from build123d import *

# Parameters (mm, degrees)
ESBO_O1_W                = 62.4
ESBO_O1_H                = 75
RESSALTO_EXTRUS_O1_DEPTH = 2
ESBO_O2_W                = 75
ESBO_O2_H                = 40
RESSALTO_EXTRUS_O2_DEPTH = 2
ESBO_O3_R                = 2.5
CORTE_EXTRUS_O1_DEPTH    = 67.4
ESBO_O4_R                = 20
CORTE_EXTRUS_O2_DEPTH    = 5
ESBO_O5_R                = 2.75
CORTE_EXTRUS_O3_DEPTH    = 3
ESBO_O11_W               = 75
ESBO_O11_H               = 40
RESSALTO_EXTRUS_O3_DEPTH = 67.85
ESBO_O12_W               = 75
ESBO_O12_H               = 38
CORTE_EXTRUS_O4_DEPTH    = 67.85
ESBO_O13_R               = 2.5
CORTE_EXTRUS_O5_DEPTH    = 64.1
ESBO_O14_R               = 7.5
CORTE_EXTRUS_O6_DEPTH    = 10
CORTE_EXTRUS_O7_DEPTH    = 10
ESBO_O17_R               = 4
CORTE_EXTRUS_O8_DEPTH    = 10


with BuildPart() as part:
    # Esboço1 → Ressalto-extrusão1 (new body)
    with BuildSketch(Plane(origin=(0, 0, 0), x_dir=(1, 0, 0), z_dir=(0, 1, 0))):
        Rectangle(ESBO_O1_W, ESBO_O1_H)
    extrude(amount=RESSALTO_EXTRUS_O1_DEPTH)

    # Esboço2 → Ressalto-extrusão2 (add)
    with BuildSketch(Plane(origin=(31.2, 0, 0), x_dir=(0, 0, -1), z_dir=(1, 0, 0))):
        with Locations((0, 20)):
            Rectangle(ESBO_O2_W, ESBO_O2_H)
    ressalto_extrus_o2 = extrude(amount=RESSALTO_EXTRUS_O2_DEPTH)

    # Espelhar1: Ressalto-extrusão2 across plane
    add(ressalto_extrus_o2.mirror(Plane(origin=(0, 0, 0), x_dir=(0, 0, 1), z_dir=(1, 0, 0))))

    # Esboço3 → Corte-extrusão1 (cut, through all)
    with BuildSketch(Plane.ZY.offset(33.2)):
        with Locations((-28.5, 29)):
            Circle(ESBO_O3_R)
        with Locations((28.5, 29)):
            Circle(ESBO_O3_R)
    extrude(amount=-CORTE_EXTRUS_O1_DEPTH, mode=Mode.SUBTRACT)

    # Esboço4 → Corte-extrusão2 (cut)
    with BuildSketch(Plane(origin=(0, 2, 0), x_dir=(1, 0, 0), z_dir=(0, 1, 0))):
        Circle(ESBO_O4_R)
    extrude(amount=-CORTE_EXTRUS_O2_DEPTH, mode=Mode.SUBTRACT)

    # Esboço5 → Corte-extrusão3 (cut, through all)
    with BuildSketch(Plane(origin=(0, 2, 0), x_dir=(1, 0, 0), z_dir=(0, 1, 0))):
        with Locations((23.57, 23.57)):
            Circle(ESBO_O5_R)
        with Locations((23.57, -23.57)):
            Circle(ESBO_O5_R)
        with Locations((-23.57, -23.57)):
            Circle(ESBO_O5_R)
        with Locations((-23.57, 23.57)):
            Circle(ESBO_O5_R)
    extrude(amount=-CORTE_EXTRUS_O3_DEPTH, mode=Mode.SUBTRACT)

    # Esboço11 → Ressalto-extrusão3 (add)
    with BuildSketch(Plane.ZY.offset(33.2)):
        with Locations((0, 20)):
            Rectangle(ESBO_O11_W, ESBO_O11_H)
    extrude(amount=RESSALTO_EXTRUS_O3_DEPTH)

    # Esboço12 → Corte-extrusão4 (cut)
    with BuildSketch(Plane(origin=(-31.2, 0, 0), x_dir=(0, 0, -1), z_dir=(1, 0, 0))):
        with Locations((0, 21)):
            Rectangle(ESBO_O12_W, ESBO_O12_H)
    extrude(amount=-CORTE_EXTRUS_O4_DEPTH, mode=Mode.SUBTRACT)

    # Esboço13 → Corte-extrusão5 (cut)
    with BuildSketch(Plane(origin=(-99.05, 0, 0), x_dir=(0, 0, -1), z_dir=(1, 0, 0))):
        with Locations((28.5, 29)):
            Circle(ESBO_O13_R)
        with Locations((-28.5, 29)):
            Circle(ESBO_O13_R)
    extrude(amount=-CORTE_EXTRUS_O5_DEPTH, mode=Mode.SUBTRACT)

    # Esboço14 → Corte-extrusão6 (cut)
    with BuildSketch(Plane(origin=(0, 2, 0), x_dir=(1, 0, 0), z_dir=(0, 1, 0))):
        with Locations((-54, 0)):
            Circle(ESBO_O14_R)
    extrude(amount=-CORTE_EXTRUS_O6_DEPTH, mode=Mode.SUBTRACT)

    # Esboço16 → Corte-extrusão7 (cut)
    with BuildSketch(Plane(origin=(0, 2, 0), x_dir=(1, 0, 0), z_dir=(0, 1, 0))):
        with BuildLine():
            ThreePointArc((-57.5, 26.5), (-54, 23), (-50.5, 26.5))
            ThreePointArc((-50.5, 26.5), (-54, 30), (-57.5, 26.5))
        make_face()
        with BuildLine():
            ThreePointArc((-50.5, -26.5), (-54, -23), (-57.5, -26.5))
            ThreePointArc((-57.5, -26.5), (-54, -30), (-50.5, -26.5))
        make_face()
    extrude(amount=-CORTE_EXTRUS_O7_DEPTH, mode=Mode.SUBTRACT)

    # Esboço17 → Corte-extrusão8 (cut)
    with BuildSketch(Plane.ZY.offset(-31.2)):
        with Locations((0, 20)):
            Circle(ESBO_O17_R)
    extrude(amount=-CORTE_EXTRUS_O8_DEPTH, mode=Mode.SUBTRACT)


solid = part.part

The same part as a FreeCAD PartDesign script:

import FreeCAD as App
import Part
import Sketcher

V = App.Vector

doc = App.newDocument("Part")
body = doc.addObject("PartDesign::Body", "Body")

# Sketch on XZ plane
sketch1 = body.newObject("Sketcher::SketchObject", "Sketch")
sketch1.AttachmentSupport = (doc.getObject("XZ_Plane"), [""])
sketch1.MapMode = "FlatFace"
sketch1.addGeometry([
    Part.LineSegment(V(-31, -38, 0), V(-31, 38, 0)),
    Part.LineSegment(V(-31, 38, 0), V(31, 38, 0)),
    Part.LineSegment(V(31, 38, 0), V(31, -38, 0)),
    Part.LineSegment(V(31, -38, 0), V(-31, -38, 0)),
], False)
sketch1.addConstraint([
    Sketcher.Constraint("Coincident", 0, 2, 1, 1),
    Sketcher.Constraint("Coincident", 1, 2, 2, 1),
    Sketcher.Constraint("Coincident", 2, 2, 3, 1),
    Sketcher.Constraint("Coincident", 3, 2, 0, 1),
    Sketcher.Constraint("Vertical", 0),
    Sketcher.Constraint("Horizontal", 1),
    Sketcher.Constraint("Vertical", 2),
    Sketcher.Constraint("Horizontal", 3),
    Sketcher.Constraint("Symmetric", 0, 2, 2, 2, -1, 1),
    Sketcher.Constraint("DistanceY", 0, 1, 0, 2, 75.0),
    Sketcher.Constraint("DistanceX", 1, 1, 1, 2, 62.4),
])
pad1 = body.newObject("PartDesign::Pad", "Pad")
pad1.Profile = sketch1
pad1.Length = 2
pad1.Reversed = True

# Sketch on YZ plane
sketch2 = body.newObject("Sketcher::SketchObject", "Sketch001")
sketch2.AttachmentSupport = (doc.getObject("YZ_Plane"), [""])
sketch2.MapMode = "FlatFace"
sketch2.AttachmentOffset = App.Placement(V(0, 0, 31.2), App.Rotation())
sketch2.addGeometry([
    Part.LineSegment(V(40, 38, 0), V(0, 38, 0)),
    Part.LineSegment(V(0, 38, 0), V(0, -38, 0)),
    Part.LineSegment(V(0, -38, 0), V(40, -38, 0)),
    Part.LineSegment(V(40, -38, 0), V(40, 38, 0)),
], False)
sketch2.addConstraint([
    Sketcher.Constraint("Coincident", 0, 2, 1, 1),
    Sketcher.Constraint("Coincident", 1, 2, 2, 1),
    Sketcher.Constraint("Coincident", 2, 2, 3, 1),
    Sketcher.Constraint("Coincident", 3, 2, 0, 1),
    Sketcher.Constraint("Horizontal", 0),
    Sketcher.Constraint("Vertical", 1),
    Sketcher.Constraint("Horizontal", 2),
    Sketcher.Constraint("Vertical", 3),
    Sketcher.Constraint("Symmetric", 0, 2, 1, 2, -1, 1),
    Sketcher.Constraint("DistanceX", 0, 2, 0, 1, 40.0),
    Sketcher.Constraint("DistanceY", 1, 2, 1, 1, 75.0),
])
pad2 = body.newObject("PartDesign::Pad", "Pad001")
pad2.Profile = sketch2
pad2.Length = 2
doc.recompute()

mirrored = body.newObject("PartDesign::Mirrored", "Mirrored")
mirrored.Originals = [pad2]
mirrored.MirrorPlane = (doc.getObject("YZ_Plane"), [""])
body.Tip = mirrored

# Sketch on YZ plane
sketch3 = body.newObject("Sketcher::SketchObject", "Sketch002")
sketch3.AttachmentSupport = (doc.getObject("YZ_Plane"), [""])
sketch3.MapMode = "FlatFace"
sketch3.AttachmentOffset = App.Placement(V(0, 0, -33.2), App.Rotation())
sketch3.addGeometry([
    Part.Circle(V(29, -28.5, 0), V(0, 0, 1), 2.5),
    Part.Circle(V(29, 28.5, 0), V(0, 0, 1), 2.5),
], False)
sketch3.addConstraint([
    Sketcher.Constraint("Equal", 0, 1),
    Sketcher.Constraint("Symmetric", 0, 3, 1, 3, -1),
    Sketcher.Constraint("Diameter", 0, 5.0),
    Sketcher.Constraint("DistanceX", -1, 1, 0, 3, 29.0),
    Sketcher.Constraint("DistanceY", 0, 3, 1, 3, 57.0),
])
pocket1 = body.newObject("PartDesign::Pocket", "Pocket")
pocket1.Profile = sketch3
pocket1.Type = "ThroughAll"
pocket1.Reversed = True

# Sketch on XZ plane
sketch4 = body.newObject("Sketcher::SketchObject", "Sketch003")
sketch4.AttachmentSupport = (doc.getObject("XZ_Plane"), [""])
sketch4.MapMode = "FlatFace"
sketch4.AttachmentOffset = App.Placement(V(0, 0, -2), App.Rotation())
sketch4.addGeometry(Part.Circle(V(0, 0, 0), V(0, 0, 1), 20), False)
sketch4.addConstraint([
    Sketcher.Constraint("Coincident", 0, 3, -1, 1),
    Sketcher.Constraint("Diameter", 0, 40.0),
])
pocket2 = body.newObject("PartDesign::Pocket", "Pocket001")
pocket2.Profile = sketch4
pocket2.Length = 5
pocket2.Reversed = True

# Sketch on XZ plane
sketch5 = body.newObject("Sketcher::SketchObject", "Sketch004")
sketch5.AttachmentSupport = (doc.getObject("XZ_Plane"), [""])
sketch5.MapMode = "FlatFace"
sketch5.AttachmentOffset = App.Placement(V(0, 0, -2), App.Rotation())
sketch5.addGeometry([
    Part.Circle(V(23.6, -23.6, 0), V(0, 0, 1), 2.8),
    Part.Circle(V(23.6, 23.6, 0), V(0, 0, 1), 2.8),
    Part.Circle(V(-23.6, 23.6, 0), V(0, 0, 1), 2.8),
    Part.Circle(V(-23.6, -23.6, 0), V(0, 0, 1), 2.8),
], False)
sketch5.addConstraint([
    Sketcher.Constraint("Equal", 0, 1),
    Sketcher.Constraint("Equal", 1, 2),
    Sketcher.Constraint("Equal", 2, 3),
    Sketcher.Constraint("Symmetric", 0, 3, 2, 3, -1, 1),
    Sketcher.Constraint("Symmetric", 1, 3, 3, 3, -1, 1),
    Sketcher.Constraint("Symmetric", 1, 3, 2, 3, -2),
    Sketcher.Constraint("Diameter", 0, 5.5),
    Sketcher.Constraint("DistanceX", -1, 1, 0, 3, 23.57),
    Sketcher.Constraint("DistanceY", 0, 3, -1, 1, 23.57),
])
pocket3 = body.newObject("PartDesign::Pocket", "Pocket002")
pocket3.Profile = sketch5
pocket3.Type = "ThroughAll"
pocket3.Reversed = True

# Sketch on YZ plane
sketch6 = body.newObject("Sketcher::SketchObject", "Sketch005")
sketch6.AttachmentSupport = (doc.getObject("YZ_Plane"), [""])
sketch6.MapMode = "FlatFace"
sketch6.AttachmentOffset = App.Placement(V(0, 0, -33.2), App.Rotation())
sketch6.addGeometry([
    Part.LineSegment(V(40, -38, 0), V(0, -38, 0)),
    Part.LineSegment(V(0, -38, 0), V(0, 38, 0)),
    Part.LineSegment(V(0, 38, 0), V(40, 38, 0)),
    Part.LineSegment(V(40, 38, 0), V(40, -38, 0)),
], False)
sketch6.addConstraint([
    Sketcher.Constraint("Coincident", 0, 2, 1, 1),
    Sketcher.Constraint("Coincident", 1, 2, 2, 1),
    Sketcher.Constraint("Coincident", 2, 2, 3, 1),
    Sketcher.Constraint("Coincident", 3, 2, 0, 1),
    Sketcher.Constraint("Horizontal", 0),
    Sketcher.Constraint("Vertical", 1),
    Sketcher.Constraint("Horizontal", 2),
    Sketcher.Constraint("Vertical", 3),
    Sketcher.Constraint("Symmetric", 0, 2, 1, 2, -1, 1),
    Sketcher.Constraint("DistanceX", 0, 2, 0, 1, 40.0),
    Sketcher.Constraint("DistanceY", 1, 1, 1, 2, 75.0),
])
pad3 = body.newObject("PartDesign::Pad", "Pad002")
pad3.Profile = sketch6
pad3.Length = 67.85
pad3.Reversed = True

# Sketch on YZ plane
sketch7 = body.newObject("Sketcher::SketchObject", "Sketch006")
sketch7.AttachmentSupport = (doc.getObject("YZ_Plane"), [""])
sketch7.MapMode = "FlatFace"
sketch7.AttachmentOffset = App.Placement(V(0, 0, -31.2), App.Rotation())
sketch7.addGeometry([
    Part.LineSegment(V(40, 38, 0), V(2, 38, 0)),
    Part.LineSegment(V(2, 38, 0), V(2, -38, 0)),
    Part.LineSegment(V(2, -38, 0), V(40, -38, 0)),
    Part.LineSegment(V(40, -38, 0), V(40, 38, 0)),
], False)
sketch7.addConstraint([
    Sketcher.Constraint("Coincident", 0, 2, 1, 1),
    Sketcher.Constraint("Coincident", 1, 2, 2, 1),
    Sketcher.Constraint("Coincident", 2, 2, 3, 1),
    Sketcher.Constraint("Coincident", 3, 2, 0, 1),
    Sketcher.Constraint("Horizontal", 0),
    Sketcher.Constraint("Vertical", 1),
    Sketcher.Constraint("Horizontal", 2),
    Sketcher.Constraint("Vertical", 3),
    Sketcher.Constraint("DistanceX", 0, 2, 0, 1, 38.0),
    Sketcher.Constraint("DistanceY", 1, 2, 1, 1, 75.0),
    Sketcher.Constraint("DistanceX", -1, 1, 0, 2, 2.0),
    Sketcher.Constraint("DistanceY", -1, 1, 0, 2, 37.5),
])
pocket4 = body.newObject("PartDesign::Pocket", "Pocket003")
pocket4.Profile = sketch7
pocket4.Length = 67.85

# Sketch on YZ plane
sketch8 = body.newObject("Sketcher::SketchObject", "Sketch007")
sketch8.AttachmentSupport = (doc.getObject("YZ_Plane"), [""])
sketch8.MapMode = "FlatFace"
sketch8.AttachmentOffset = App.Placement(V(0, 0, -99.05), App.Rotation())
sketch8.addGeometry([
    Part.Circle(V(29, -28.5, 0), V(0, 0, 1), 2.5),
    Part.Circle(V(29, 28.5, 0), V(0, 0, 1), 2.5),
], False)
sketch8.addConstraint([
    Sketcher.Constraint("Equal", 0, 1),
    Sketcher.Constraint("Symmetric", 0, 3, 1, 3, -1),
    Sketcher.Constraint("Diameter", 0, 5.0),
    Sketcher.Constraint("DistanceX", -1, 1, 0, 3, 29.0),
    Sketcher.Constraint("DistanceY", 0, 3, 1, 3, 57.0),
])
pocket5 = body.newObject("PartDesign::Pocket", "Pocket004")
pocket5.Profile = sketch8
pocket5.Length = 64.1

# Sketch on XZ plane
sketch9 = body.newObject("Sketcher::SketchObject", "Sketch008")
sketch9.AttachmentSupport = (doc.getObject("XZ_Plane"), [""])
sketch9.MapMode = "FlatFace"
sketch9.AttachmentOffset = App.Placement(V(0, 0, -2), App.Rotation())
sketch9.addGeometry(Part.Circle(V(-54, 0, 0), V(0, 0, 1), 8), False)
sketch9.addConstraint([
    Sketcher.Constraint("PointOnObject", 0, 3, -1),
    Sketcher.Constraint("Diameter", 0, 15.0),
    Sketcher.Constraint("DistanceX", 0, 3, -1, 1, 54.0),
])
pocket6 = body.newObject("PartDesign::Pocket", "Pocket005")
pocket6.Profile = sketch9
pocket6.Length = 10
pocket6.Reversed = True

# Sketch on XZ plane
sketch10 = body.newObject("Sketcher::SketchObject", "Sketch009")
sketch10.AttachmentSupport = (doc.getObject("XZ_Plane"), [""])
sketch10.MapMode = "FlatFace"
sketch10.AttachmentOffset = App.Placement(V(0, 0, -2), App.Rotation())
sketch10.addGeometry([
    Part.Circle(V(-54, -26.5, 0), V(0, 0, 1), 3.5),
    Part.Circle(V(-54, 26.5, 0), V(0, 0, 1), 3.5),
], False)
sketch10.addConstraint([
    Sketcher.Constraint("Equal", 0, 1),
    Sketcher.Constraint("Symmetric", 0, 3, 1, 3, -1),
    Sketcher.Constraint("Diameter", 0, 7.0),
    Sketcher.Constraint("DistanceX", 0, 3, -1, 1, 54.0),
    Sketcher.Constraint("DistanceY", 0, 3, 1, 3, 53.0),
])
pocket7 = body.newObject("PartDesign::Pocket", "Pocket006")
pocket7.Profile = sketch10
pocket7.Length = 10
pocket7.Reversed = True

# Sketch on YZ plane
sketch11 = body.newObject("Sketcher::SketchObject", "Sketch010")
sketch11.AttachmentSupport = (doc.getObject("YZ_Plane"), [""])
sketch11.MapMode = "FlatFace"
sketch11.AttachmentOffset = App.Placement(V(0, 0, 31.2), App.Rotation())
sketch11.addGeometry(Part.Circle(V(20, 0, 0), V(0, 0, 1), 4), False)
sketch11.addConstraint([
    Sketcher.Constraint("PointOnObject", 0, 3, -1),
    Sketcher.Constraint("Diameter", 0, 8.0),
    Sketcher.Constraint("DistanceX", -1, 1, 0, 3, 20.0),
])
pocket8 = body.newObject("PartDesign::Pocket", "Pocket007")
pocket8.Profile = sketch11
pocket8.Length = 10
pocket8.Reversed = True

doc.recompute()
